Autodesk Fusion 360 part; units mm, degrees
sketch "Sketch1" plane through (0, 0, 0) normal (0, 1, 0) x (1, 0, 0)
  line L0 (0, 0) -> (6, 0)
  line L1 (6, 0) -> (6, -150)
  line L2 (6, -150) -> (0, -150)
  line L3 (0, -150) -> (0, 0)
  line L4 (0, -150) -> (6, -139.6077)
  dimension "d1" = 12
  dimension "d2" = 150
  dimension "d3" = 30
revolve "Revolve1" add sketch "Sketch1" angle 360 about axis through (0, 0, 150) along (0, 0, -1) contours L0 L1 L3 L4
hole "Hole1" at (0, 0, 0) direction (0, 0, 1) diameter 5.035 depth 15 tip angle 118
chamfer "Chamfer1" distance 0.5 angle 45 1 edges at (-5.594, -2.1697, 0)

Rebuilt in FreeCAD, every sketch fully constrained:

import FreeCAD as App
import Part
import Sketcher

V = App.Vector
Q = App.Units.Quantity


def edges_at(feature, points):
    """Names of the edges that pass closest to the given points."""
    edges = feature.Shape.Edges
    near = lambda p: min(range(len(edges)), key=lambda i: edges[i].distToShape(Part.Vertex(*p))[0])
    return sorted({f"Edge{near(p) + 1}" for p in points})


def add_polygon(sketch, points):
    """Adds a closed chain of lines whose ends are joined by coincident constraints."""
    first, n = sketch.GeometryCount, len(points)
    for a, b in zip(points, points[1:] + points[:1]):
        sketch.addGeometry(Part.LineSegment(App.Vector(*a, 0), App.Vector(*b, 0)), False)
    for i in range(n):
        sketch.addConstraint(Sketcher.Constraint("Coincident", first + i, 2, first + (i + 1) % n, 1))

doc = App.newDocument("Part")
body = doc.addObject("PartDesign::Body", "Body")

# Sketch on XZ plane
sketch1 = body.newObject("Sketcher::SketchObject", "Sketch")
sketch1.AttachmentSupport = (doc.getObject("XZ_Plane"), [""])
sketch1.MapMode = "FlatFace"
add_polygon(sketch1, [(6, 0), (0, 0), (0, 150), (6, 139.6077)])  # lines 0-3
sketch1.addConstraint(Sketcher.Constraint("Horizontal", 0))
sketch1.addConstraint(Sketcher.Constraint("Vertical", 1))
sketch1.addConstraint(Sketcher.Constraint("Vertical", 3))
sketch1.addConstraint(Sketcher.Constraint("Coincident", 0, 2, -1, 1))
sketch1.addConstraint(Sketcher.Constraint("DistanceY", 1, 1, 1, 2, Q("150 mm")))
sketch1.addConstraint(Sketcher.Constraint("Distance", 2, Q("12 mm")))
sketch1.addConstraint(Sketcher.Constraint("DistanceX", 0, 2, 0, 1, Q("6 mm")))
revolution = body.newObject("PartDesign::Revolution", "Revolution")
revolution.Profile = sketch1
revolution.ReferenceAxis = (sketch1, ["V_Axis"])
revolution.Angle = 360

# Sketch on XY plane
sketch2 = body.newObject("Sketcher::SketchObject", "Sketch001")
sketch2.AttachmentSupport = (doc.getObject("XY_Plane"), [""])
sketch2.MapMode = "FlatFace"
sketch2.addGeometry(Part.Circle(V(0, 0, 0), V(0, 0, 1), 2.5175), False)
sketch2.addConstraint(Sketcher.Constraint("Coincident", 0, 3, -1, 1))
sketch2.addConstraint(Sketcher.Constraint("Diameter", 0, Q("5.035 mm")))
doc.recompute()
hole = body.newObject("PartDesign::Hole", "Hole")
hole.Profile = sketch2
hole.ThreadType = "None"
hole.Diameter = 5.035
hole.DepthType = "Dimension"
hole.Depth = 15
hole.DrillPoint = "Angled"
hole.DrillPointAngle = 118
hole.Reversed = True
doc.recompute()

chamfer = body.newObject("PartDesign::Chamfer", "Chamfer")
chamfer.Base = (hole, edges_at(hole, [(-5.594, -2.17, 0)]))
chamfer.Size = 0.5

doc.recompute()
